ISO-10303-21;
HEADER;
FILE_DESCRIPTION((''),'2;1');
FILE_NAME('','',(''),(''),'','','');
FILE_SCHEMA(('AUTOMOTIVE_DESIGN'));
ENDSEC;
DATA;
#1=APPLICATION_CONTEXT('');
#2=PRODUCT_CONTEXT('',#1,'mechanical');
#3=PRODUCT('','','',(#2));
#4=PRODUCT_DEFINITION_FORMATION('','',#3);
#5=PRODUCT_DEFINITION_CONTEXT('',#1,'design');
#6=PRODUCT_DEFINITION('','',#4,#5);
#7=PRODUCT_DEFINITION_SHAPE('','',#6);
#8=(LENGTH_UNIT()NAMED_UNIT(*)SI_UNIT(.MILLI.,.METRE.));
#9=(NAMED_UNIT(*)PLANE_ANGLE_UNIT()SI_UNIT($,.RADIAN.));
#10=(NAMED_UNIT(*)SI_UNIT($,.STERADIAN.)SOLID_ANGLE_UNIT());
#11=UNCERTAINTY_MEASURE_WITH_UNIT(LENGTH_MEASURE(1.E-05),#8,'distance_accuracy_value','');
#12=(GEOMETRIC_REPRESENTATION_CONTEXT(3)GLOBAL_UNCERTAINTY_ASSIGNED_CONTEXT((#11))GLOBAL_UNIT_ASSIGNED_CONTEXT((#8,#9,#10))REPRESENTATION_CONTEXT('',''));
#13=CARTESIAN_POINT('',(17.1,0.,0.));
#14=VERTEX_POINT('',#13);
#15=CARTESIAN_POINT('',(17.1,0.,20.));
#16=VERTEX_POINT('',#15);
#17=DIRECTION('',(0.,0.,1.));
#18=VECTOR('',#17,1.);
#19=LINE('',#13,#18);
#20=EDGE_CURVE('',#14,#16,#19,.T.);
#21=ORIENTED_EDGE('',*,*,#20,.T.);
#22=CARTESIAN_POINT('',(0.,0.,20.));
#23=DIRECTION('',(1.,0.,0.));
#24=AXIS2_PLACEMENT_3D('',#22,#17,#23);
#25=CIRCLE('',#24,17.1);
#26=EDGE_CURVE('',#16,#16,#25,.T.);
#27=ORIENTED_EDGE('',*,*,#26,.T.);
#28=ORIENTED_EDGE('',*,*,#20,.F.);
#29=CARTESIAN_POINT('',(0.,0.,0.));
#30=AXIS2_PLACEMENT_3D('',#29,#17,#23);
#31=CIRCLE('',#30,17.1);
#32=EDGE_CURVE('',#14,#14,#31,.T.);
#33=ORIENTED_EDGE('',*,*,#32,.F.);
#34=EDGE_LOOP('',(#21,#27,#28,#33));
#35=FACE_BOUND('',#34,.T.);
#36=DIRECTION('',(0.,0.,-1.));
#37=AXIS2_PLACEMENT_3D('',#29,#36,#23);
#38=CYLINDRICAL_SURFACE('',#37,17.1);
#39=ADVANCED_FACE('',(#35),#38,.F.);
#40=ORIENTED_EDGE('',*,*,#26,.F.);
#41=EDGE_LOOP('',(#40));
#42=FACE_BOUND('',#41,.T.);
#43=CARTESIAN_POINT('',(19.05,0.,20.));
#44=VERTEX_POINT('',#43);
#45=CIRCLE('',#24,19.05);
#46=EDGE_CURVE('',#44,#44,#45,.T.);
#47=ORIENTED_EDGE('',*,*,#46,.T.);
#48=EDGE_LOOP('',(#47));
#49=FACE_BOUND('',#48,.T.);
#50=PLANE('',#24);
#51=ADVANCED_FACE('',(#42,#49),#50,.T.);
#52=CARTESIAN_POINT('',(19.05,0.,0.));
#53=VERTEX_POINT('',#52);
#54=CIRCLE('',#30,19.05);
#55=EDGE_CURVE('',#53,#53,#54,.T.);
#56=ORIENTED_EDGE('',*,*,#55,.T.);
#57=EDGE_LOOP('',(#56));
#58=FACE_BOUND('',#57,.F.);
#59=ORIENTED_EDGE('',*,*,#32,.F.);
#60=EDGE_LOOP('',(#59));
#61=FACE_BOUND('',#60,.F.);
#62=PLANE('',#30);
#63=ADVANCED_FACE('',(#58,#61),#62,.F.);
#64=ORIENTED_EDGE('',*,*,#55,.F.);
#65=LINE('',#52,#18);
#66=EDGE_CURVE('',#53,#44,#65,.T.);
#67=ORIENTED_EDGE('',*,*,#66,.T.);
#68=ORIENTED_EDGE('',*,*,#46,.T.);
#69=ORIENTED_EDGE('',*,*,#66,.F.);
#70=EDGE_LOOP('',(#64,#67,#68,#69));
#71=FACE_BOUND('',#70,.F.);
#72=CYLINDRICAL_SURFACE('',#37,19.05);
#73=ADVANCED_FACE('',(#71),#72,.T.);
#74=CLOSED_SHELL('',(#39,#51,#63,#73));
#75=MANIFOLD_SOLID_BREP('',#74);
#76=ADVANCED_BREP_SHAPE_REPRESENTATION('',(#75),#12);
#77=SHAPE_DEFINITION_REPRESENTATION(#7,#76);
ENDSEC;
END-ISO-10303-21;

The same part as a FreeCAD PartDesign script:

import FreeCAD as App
import Part
import Sketcher
Q = App.Units.Quantity

doc = App.newDocument("Part")
body = doc.addObject("PartDesign::Body", "Body")

sketch1 = body.newObject("Sketcher::SketchObject", "Sketch")
sketch1.AttachmentSupport = (doc.getObject("XY_Plane"), [""])
sketch1.MapMode = "FlatFace"
sketch1.addGeometry([
    Part.Circle(App.Vector(0, 0, 0), App.Vector(0, 0, 1), 19),
    Part.Circle(App.Vector(0, 0, 0), App.Vector(0, 0, 1), 17),
], False)
sketch1.addConstraint([
    Sketcher.Constraint("Coincident", 0, 3, -1, 1),
    Sketcher.Constraint("Coincident", 1, 3, -1, 1),
    Sketcher.Constraint("Diameter", 0, Q("38.1 mm")),
    Sketcher.Constraint("Diameter", 1, Q("34.2 mm")),
])
pad1 = body.newObject("PartDesign::Pad", "Pad")
pad1.Profile = sketch1
pad1.Length = 20

doc.recompute()
